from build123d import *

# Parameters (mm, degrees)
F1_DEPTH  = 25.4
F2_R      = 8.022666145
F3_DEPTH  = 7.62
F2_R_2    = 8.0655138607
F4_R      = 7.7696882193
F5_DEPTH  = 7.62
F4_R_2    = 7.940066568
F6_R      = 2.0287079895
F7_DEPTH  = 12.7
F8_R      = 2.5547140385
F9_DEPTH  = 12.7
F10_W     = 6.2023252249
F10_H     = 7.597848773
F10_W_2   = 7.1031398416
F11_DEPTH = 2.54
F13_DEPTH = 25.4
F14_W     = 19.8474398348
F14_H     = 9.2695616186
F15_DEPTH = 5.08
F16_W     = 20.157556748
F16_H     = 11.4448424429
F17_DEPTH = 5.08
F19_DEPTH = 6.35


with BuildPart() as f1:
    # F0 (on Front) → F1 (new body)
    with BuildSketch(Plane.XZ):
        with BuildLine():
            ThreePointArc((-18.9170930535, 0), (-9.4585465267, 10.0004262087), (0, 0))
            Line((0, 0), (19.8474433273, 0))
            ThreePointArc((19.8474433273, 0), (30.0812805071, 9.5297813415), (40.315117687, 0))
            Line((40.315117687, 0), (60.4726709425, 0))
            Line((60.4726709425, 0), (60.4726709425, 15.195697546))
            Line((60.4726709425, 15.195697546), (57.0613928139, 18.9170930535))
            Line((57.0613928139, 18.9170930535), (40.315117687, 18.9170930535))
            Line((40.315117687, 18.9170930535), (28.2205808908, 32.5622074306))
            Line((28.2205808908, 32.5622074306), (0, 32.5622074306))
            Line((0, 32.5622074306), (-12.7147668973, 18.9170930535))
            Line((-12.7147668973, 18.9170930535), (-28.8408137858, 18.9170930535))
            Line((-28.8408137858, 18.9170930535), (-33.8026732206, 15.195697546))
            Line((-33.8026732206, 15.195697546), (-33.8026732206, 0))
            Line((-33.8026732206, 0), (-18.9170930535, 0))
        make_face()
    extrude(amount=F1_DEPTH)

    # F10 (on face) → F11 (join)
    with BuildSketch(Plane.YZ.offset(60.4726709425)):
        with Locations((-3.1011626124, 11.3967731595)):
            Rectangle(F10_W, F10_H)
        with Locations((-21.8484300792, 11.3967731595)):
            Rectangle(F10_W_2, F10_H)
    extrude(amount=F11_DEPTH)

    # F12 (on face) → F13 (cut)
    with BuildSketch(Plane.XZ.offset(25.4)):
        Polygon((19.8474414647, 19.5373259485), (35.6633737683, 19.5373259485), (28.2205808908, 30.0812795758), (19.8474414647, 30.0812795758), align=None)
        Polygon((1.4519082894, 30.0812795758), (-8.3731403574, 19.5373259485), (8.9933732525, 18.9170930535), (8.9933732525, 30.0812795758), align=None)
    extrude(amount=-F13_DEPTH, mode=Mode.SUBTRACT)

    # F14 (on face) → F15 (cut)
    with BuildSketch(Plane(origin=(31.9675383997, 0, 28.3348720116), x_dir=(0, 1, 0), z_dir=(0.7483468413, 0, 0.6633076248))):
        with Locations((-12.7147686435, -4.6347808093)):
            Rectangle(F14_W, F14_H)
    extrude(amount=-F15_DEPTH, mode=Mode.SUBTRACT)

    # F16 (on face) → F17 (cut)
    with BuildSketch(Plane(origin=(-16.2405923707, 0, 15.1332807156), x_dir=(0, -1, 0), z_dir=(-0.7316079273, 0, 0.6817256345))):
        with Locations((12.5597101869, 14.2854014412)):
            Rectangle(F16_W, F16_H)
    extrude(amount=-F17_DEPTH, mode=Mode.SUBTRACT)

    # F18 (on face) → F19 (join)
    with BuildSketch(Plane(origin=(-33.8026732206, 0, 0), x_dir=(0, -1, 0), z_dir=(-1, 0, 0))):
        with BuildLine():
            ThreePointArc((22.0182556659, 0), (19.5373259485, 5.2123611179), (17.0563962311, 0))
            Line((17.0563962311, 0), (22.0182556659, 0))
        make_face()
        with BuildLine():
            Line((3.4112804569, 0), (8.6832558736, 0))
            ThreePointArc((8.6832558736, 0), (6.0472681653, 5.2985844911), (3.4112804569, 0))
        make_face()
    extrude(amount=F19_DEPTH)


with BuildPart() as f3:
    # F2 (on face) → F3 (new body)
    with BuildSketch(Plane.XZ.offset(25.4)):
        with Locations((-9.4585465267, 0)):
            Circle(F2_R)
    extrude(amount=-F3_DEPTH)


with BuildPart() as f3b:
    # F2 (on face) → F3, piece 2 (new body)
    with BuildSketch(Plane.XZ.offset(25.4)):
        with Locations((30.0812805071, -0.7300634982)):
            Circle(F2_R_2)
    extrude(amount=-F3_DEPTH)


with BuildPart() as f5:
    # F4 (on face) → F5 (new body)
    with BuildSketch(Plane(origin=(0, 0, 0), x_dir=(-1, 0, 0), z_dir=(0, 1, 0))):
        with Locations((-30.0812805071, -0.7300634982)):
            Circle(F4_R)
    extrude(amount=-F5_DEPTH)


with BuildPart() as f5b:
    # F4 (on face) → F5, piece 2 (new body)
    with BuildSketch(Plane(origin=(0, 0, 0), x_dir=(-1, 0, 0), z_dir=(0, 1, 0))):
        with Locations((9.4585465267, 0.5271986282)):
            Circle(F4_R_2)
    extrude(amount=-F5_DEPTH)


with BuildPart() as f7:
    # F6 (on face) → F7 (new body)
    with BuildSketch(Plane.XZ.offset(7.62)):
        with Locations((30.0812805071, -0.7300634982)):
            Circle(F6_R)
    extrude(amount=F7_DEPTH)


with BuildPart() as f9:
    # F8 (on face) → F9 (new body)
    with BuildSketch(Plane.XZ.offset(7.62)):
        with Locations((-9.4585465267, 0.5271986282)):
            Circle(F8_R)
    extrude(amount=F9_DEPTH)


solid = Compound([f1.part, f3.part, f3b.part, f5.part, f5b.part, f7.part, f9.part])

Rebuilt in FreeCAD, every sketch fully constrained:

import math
import FreeCAD as App
import Part
import Sketcher
from FreeCAD import Vector
Q = App.Units.Quantity

doc = App.newDocument("Part")
body = doc.addObject("PartDesign::Body", "Body")

# Sketch on XZ plane
sketch1 = body.newObject("Sketcher::SketchObject", "Sketch")
sketch1.AttachmentSupport = (doc.getObject("XZ_Plane"), [""])
sketch1.MapMode = "FlatFace"
sketch1.addGeometry([
    Part.ArcOfCircle(Part.Circle(Vector(-9.458547, 0.527199, 0), Vector(0, 0, 1), 9.473228), math.radians(-3.19024), math.radians(183.19024)),  # 0
    Part.LineSegment(Vector(0, 0, 0), Vector(19.847443, 0, 0)),  # 1
    Part.ArcOfCircle(Part.Circle(Vector(30.081281, -0.730063, 0), Vector(0, 0, 1), 10.259845), math.radians(4.080465), math.radians(175.919535)),  # 2
    Part.LineSegment(Vector(40.315118, 0, 0), Vector(60.472671, 0, 0)),  # 3
    Part.LineSegment(Vector(60.472671, 0, 0), Vector(60.472671, 15.195698, 0)),  # 4
    Part.LineSegment(Vector(60.472671, 15.195698, 0), Vector(57.061393, 18.917093, 0)),  # 5
    Part.LineSegment(Vector(57.061393, 18.917093, 0), Vector(40.315118, 18.917093, 0)),  # 6
    Part.LineSegment(Vector(40.315118, 18.917093, 0), Vector(28.220581, 32.562207, 0)),  # 7
    Part.LineSegment(Vector(28.220581, 32.562207, 0), Vector(0, 32.562207, 0)),  # 8
    Part.LineSegment(Vector(0, 32.562207, 0), Vector(-12.714767, 18.917093, 0)),  # 9
    Part.LineSegment(Vector(-12.714767, 18.917093, 0), Vector(-28.840814, 18.917093, 0)),  # 10
    Part.LineSegment(Vector(-28.840814, 18.917093, 0), Vector(-33.802673, 15.195698, 0)),  # 11
    Part.LineSegment(Vector(-33.802673, 15.195698, 0), Vector(-33.802673, 0, 0)),  # 12
    Part.LineSegment(Vector(-33.802673, 0, 0), Vector(-18.917093, 0, 0)),  # 13
], False)
sketch1.addConstraint([
    Sketcher.Constraint("Coincident", 0, 1, 1, 1),
    Sketcher.Constraint("Coincident", 1, 2, 2, 2),
    Sketcher.Constraint("Coincident", 2, 1, 3, 1),
    Sketcher.Constraint("Coincident", 3, 2, 4, 1),
    Sketcher.Constraint("Coincident", 4, 2, 5, 1),
    Sketcher.Constraint("Coincident", 5, 2, 6, 1),
    Sketcher.Constraint("Coincident", 6, 2, 7, 1),
    Sketcher.Constraint("Coincident", 7, 2, 8, 1),
    Sketcher.Constraint("Coincident", 8, 2, 9, 1),
    Sketcher.Constraint("Coincident", 9, 2, 10, 1),
    Sketcher.Constraint("Coincident", 10, 2, 11, 1),
    Sketcher.Constraint("Coincident", 11, 2, 12, 1),
    Sketcher.Constraint("Coincident", 12, 2, 13, 1),
    Sketcher.Constraint("Coincident", 13, 2, 0, 2),
    Sketcher.Constraint("Horizontal", 1),
    Sketcher.Constraint("Horizontal", 3),
    Sketcher.Constraint("Vertical", 4),
    Sketcher.Constraint("Horizontal", 6),
    Sketcher.Constraint("Horizontal", 8),
    Sketcher.Constraint("Horizontal", 10),
    Sketcher.Constraint("Vertical", 12),
    Sketcher.Constraint("Horizontal", 13),
    Sketcher.Constraint("Coincident", 0, 1, -1, 1),
    Sketcher.Constraint("PointOnObject", 2, 1, -1),
    Sketcher.Constraint("PointOnObject", 8, 2, -2),
    Sketcher.Constraint("PointOnObject", 12, 2, -1),
    Sketcher.Constraint("Horizontal", 6, 2, 9, 2),
    Sketcher.Constraint("Horizontal", 4, 2, 11, 2),
    Sketcher.Constraint("Vertical", 2, 1, 6, 2),
    Sketcher.Constraint("Radius", 0, Q("9.473228 mm")),
    Sketcher.Constraint("Radius", 2, Q("10.259845 mm")),
    Sketcher.Constraint("DistanceY", 0, 3, 11, 2, Q("0.5775 in")),
    Sketcher.Constraint("DistanceX", 8, 2, 8, 1, Q("28.220581 mm")),
    Sketcher.Constraint("DistanceX", 13, 1, 13, 2, Q("14.88558 mm")),
    Sketcher.Constraint("DistanceY", -1, 1, 0, 3, Q("0.527199 mm")),
    Sketcher.Constraint("DistanceX", 7, 2, 2, 3, Q("1.8607 mm")),
    Sketcher.Constraint("DistanceX", 1, 1, 1, 2, Q("19.847443 mm")),
    Sketcher.Constraint("DistanceX", 3, 1, 3, 2, Q("20.157553 mm")),
    Sketcher.Constraint("DistanceX", 6, 2, 6, 1, Q("16.746275 mm")),
    Sketcher.Constraint("DistanceX", 10, 2, 10, 1, Q("16.126047 mm")),
    Sketcher.Constraint("DistanceY", 2, 3, 7, 2, Q("33.292271 mm")),
    Sketcher.Constraint("DistanceX", 9, 2, 0, 3, Q("3.25622 mm")),
    Sketcher.Constraint("Distance", 5, Q("5.048327 mm")),
])
pad1 = body.newObject("PartDesign::Pad", "Pad")
pad1.Profile = sketch1
pad1.Length = Q("1 in")

# Sketch on YZ plane
sketch2 = body.newObject("Sketcher::SketchObject", "Sketch001")
sketch2.AttachmentSupport = (doc.getObject("YZ_Plane"), [""])
sketch2.MapMode = "FlatFace"
sketch2.AttachmentOffset = App.Placement(Vector(0, 0, 60.472671), App.Rotation())
sketch2.addGeometry([
    Part.LineSegment(Vector(-6.202325, 15.195698, 0), Vector(-6.202325, 7.597849, 0)),  # 0
    Part.LineSegment(Vector(-6.202325, 7.597849, 0), Vector(0, 7.597849, 0)),  # 1
    Part.LineSegment(Vector(0, 7.597849, 0), Vector(0, 15.195698, 0)),  # 2
    Part.LineSegment(Vector(0, 15.195698, 0), Vector(-6.202325, 15.195698, 0)),  # 3
    Part.LineSegment(Vector(-25.4, 15.195698, 0), Vector(-25.4, 7.597849, 0)),  # 4
    Part.LineSegment(Vector(-25.4, 7.597849, 0), Vector(-18.29686, 7.597849, 0)),  # 5
    Part.LineSegment(Vector(-18.29686, 7.597849, 0), Vector(-18.29686, 15.195698, 0)),  # 6
    Part.LineSegment(Vector(-18.29686, 15.195698, 0), Vector(-25.4, 15.195698, 0)),  # 7
], False)
sketch2.addConstraint([
    Sketcher.Constraint("Coincident", 0, 2, 1, 1),
    Sketcher.Constraint("Coincident", 1, 2, 2, 1),
    Sketcher.Constraint("Coincident", 2, 2, 3, 1),
    Sketcher.Constraint("Coincident", 3, 2, 0, 1),
    Sketcher.Constraint("Coincident", 4, 2, 5, 1),
    Sketcher.Constraint("Coincident", 5, 2, 6, 1),
    Sketcher.Constraint("Coincident", 6, 2, 7, 1),
    Sketcher.Constraint("Coincident", 7, 2, 4, 1),
    Sketcher.Constraint("Vertical", 0),
    Sketcher.Constraint("Horizontal", 1),
    Sketcher.Constraint("Vertical", 2),
    Sketcher.Constraint("Horizontal", 3),
    Sketcher.Constraint("Vertical", 4),
    Sketcher.Constraint("Horizontal", 5),
    Sketcher.Constraint("Vertical", 6),
    Sketcher.Constraint("Horizontal", 7),
    Sketcher.Constraint("PointOnObject", 1, 2, -2),
    Sketcher.Constraint("Horizontal", 1, 2, 4, 2),
    Sketcher.Constraint("Horizontal", 3, 2, 6, 2),
    Sketcher.Constraint("DistanceX", 4, 2, -1, 1, Q("1 in")),
    Sketcher.Constraint("DistanceX", 5, 1, 5, 2, Q("7.10314 mm")),
    Sketcher.Constraint("DistanceY", 0, 2, 0, 1, Q("7.597849 mm")),
    Sketcher.Constraint("DistanceX", 1, 1, 1, 2, Q("6.202325 mm")),
    Sketcher.Constraint("DistanceY", -1, 1, 0, 2, Q("7.597849 mm")),
])
pad2 = body.newObject("PartDesign::Pad", "Pad001")
pad2.Profile = sketch2
pad2.Length = Q("0.1 in")

# Sketch on XZ plane
sketch3 = body.newObject("Sketcher::SketchObject", "Sketch002")
sketch3.AttachmentSupport = (doc.getObject("XZ_Plane"), [""])
sketch3.MapMode = "FlatFace"
sketch3.AttachmentOffset = App.Placement(Vector(0, 0, 1 * 25.4), App.Rotation())
sketch3.addGeometry([
    Part.LineSegment(Vector(19.847441, 19.537326, 0), Vector(35.663374, 19.537326, 0)),  # 0
    Part.LineSegment(Vector(35.663374, 19.537326, 0), Vector(28.220581, 30.08128, 0)),  # 1
    Part.LineSegment(Vector(28.220581, 30.08128, 0), Vector(19.847441, 30.08128, 0)),  # 2
    Part.LineSegment(Vector(19.847441, 30.08128, 0), Vector(19.847441, 19.537326, 0)),  # 3
    Part.LineSegment(Vector(1.451908, 30.08128, 0), Vector(-8.37314, 19.537326, 0)),  # 4
    Part.LineSegment(Vector(-8.37314, 19.537326, 0), Vector(8.993373, 18.917093, 0)),  # 5
    Part.LineSegment(Vector(8.993373, 18.917093, 0), Vector(8.993373, 30.08128, 0)),  # 6
    Part.LineSegment(Vector(8.993373, 30.08128, 0), Vector(1.451908, 30.08128, 0)),  # 7
], False)
sketch3.addConstraint([
    Sketcher.Constraint("Coincident", 0, 2, 1, 1),
    Sketcher.Constraint("Coincident", 1, 2, 2, 1),
    Sketcher.Constraint("Coincident", 2, 2, 3, 1),
    Sketcher.Constraint("Coincident", 3, 2, 0, 1),
    Sketcher.Constraint("Coincident", 4, 2, 5, 1),
    Sketcher.Constraint("Coincident", 5, 2, 6, 1),
    Sketcher.Constraint("Coincident", 6, 2, 7, 1),
    Sketcher.Constraint("Coincident", 7, 2, 4, 1),
    Sketcher.Constraint("Horizontal", 0),
    Sketcher.Constraint("Horizontal", 2),
    Sketcher.Constraint("Vertical", 3),
    Sketcher.Constraint("Vertical", 6),
    Sketcher.Constraint("Horizontal", 7),
    Sketcher.Constraint("Horizontal", 3, 2, 4, 2),
    Sketcher.Constraint("Horizontal", 2, 2, 6, 2),
    Sketcher.Constraint("DistanceX", 5, 2, 0, 2, Q("1.05 in")),
    Sketcher.Constraint("DistanceX", 2, 2, 2, 1, Q("8.373139 mm")),
    Sketcher.Constraint("DistanceX", 0, 1, 0, 2, Q("15.815932 mm")),
    Sketcher.Constraint("DistanceX", 7, 2, 7, 1, Q("7.541465 mm")),
    Sketcher.Constraint("DistanceY", 3, 2, 3, 1, Q("10.543954 mm")),
    Sketcher.Constraint("DistanceY", 6, 1, 6, 2, Q("11.164187 mm")),
    Sketcher.Constraint("DistanceX", -1, 1, 1, 2, Q("28.220581 mm")),
    Sketcher.Constraint("DistanceY", -1, 1, 1, 2, Q("30.08128 mm")),
    Sketcher.Constraint("DistanceX", 4, 2, -1, 1, Q("8.37314 mm")),
])
pocket1 = body.newObject("PartDesign::Pocket", "Pocket")
pocket1.Profile = sketch3
pocket1.Length = Q("1 in")

# Sketch on an angled plane
sketch4 = body.newObject("Sketcher::SketchObject", "Sketch003")
sketch4.Placement = App.Placement(Vector(31.967538, 0, 28.334872), App.Rotation(Vector(0, 1, 0), Vector(-0.663307625, 0, 0.748346841), Vector(0.748346841, 0, 0.663307625), "ZXY"))
sketch4.addGeometry([
    Part.LineSegment(Vector(-22.638489, 0, 0), Vector(-22.638489, -9.269562, 0)),
    Part.LineSegment(Vector(-22.638489, -9.269562, 0), Vector(-2.791049, -9.269562, 0)),
    Part.LineSegment(Vector(-2.791049, -9.269562, 0), Vector(-2.791049, 0, 0)),
    Part.LineSegment(Vector(-2.791049, 0, 0), Vector(-22.638489, 0, 0)),
], False)
sketch4.addConstraint([
    Sketcher.Constraint("Coincident", 0, 2, 1, 1),
    Sketcher.Constraint("Coincident", 1, 2, 2, 1),
    Sketcher.Constraint("Coincident", 2, 2, 3, 1),
    Sketcher.Constraint("Coincident", 3, 2, 0, 1),
    Sketcher.Constraint("Vertical", 0),
    Sketcher.Constraint("Horizontal", 1),
    Sketcher.Constraint("Vertical", 2),
    Sketcher.Constraint("Horizontal", 3),
    Sketcher.Constraint("PointOnObject", 2, 2, -1),
    Sketcher.Constraint("DistanceX", 1, 1, 1, 2, Q("19.84744 mm")),
    Sketcher.Constraint("DistanceY", 0, 2, 0, 1, Q("9.269562 mm")),
    Sketcher.Constraint("DistanceX", 0, 2, -1, 1, Q("22.638489 mm")),
])
pocket2 = body.newObject("PartDesign::Pocket", "Pocket001")
pocket2.Profile = sketch4
pocket2.Length = Q("0.2 in")

# Sketch on an angled plane
sketch5 = body.newObject("Sketcher::SketchObject", "Sketch004")
sketch5.Placement = App.Placement(Vector(-16.240592, 0, 15.133281), App.Rotation(Vector(0, -1, 0), Vector(0.681725634, 0, 0.731607927), Vector(-0.731607927, 0, 0.681725634), "ZXY"))
sketch5.addGeometry([
    Part.LineSegment(Vector(2.480932, 20.007823, 0), Vector(2.480932, 8.56298, 0)),
    Part.LineSegment(Vector(2.480932, 8.56298, 0), Vector(22.638489, 8.56298, 0)),
    Part.LineSegment(Vector(22.638489, 8.56298, 0), Vector(22.638489, 20.007823, 0)),
    Part.LineSegment(Vector(22.638489, 20.007823, 0), Vector(2.480932, 20.007823, 0)),
], False)
sketch5.addConstraint([
    Sketcher.Constraint("Coincident", 0, 2, 1, 1),
    Sketcher.Constraint("Coincident", 1, 2, 2, 1),
    Sketcher.Constraint("Coincident", 2, 2, 3, 1),
    Sketcher.Constraint("Coincident", 3, 2, 0, 1),
    Sketcher.Constraint("Vertical", 0),
    Sketcher.Constraint("Horizontal", 1),
    Sketcher.Constraint("Vertical", 2),
    Sketcher.Constraint("Horizontal", 3),
    Sketcher.Constraint("DistanceX", 1, 1, 1, 2, Q("20.157557 mm")),
    Sketcher.Constraint("DistanceY", 0, 2, 0, 1, Q("11.444842 mm")),
    Sketcher.Constraint("DistanceX", -1, 1, 0, 2, Q("2.480932 mm")),
    Sketcher.Constraint("DistanceY", -1, 1, 0, 2, Q("8.56298 mm")),
])
pocket3 = body.newObject("PartDesign::Pocket", "Pocket002")
pocket3.Profile = sketch5
pocket3.Length = Q("0.2 in")

# Sketch on YZ plane
sketch6 = body.newObject("Sketcher::SketchObject", "Sketch005")
sketch6.AttachmentSupport = (doc.getObject("YZ_Plane"), [""])
sketch6.MapMode = "FlatFace"
sketch6.AttachmentOffset = App.Placement(Vector(0, 0, -33.802673), App.Rotation())
sketch6.addGeometry([
    Part.ArcOfCircle(Part.Circle(Vector(-19.537326, 2.015756, 0), Vector(0, 0, 1), 3.196605), math.radians(-39.093867), math.radians(219.093867)),
    Part.LineSegment(Vector(-17.056396, 0, 0), Vector(-22.018256, 0, 0)),
    Part.LineSegment(Vector(-3.41128, 0, 0), Vector(-8.683256, 0, 0)),
    Part.ArcOfCircle(Part.Circle(Vector(-6.047268, 1.993605, 0), Vector(0, 0, 1), 3.30498), math.radians(-37.100317), math.radians(217.100317)),
], False)
sketch6.addConstraint([
    Sketcher.Constraint("Coincident", 0, 1, 1, 1),
    Sketcher.Constraint("Coincident", 1, 2, 0, 2),
    Sketcher.Constraint("Coincident", 2, 1, 3, 1),
    Sketcher.Constraint("Coincident", 3, 2, 2, 2),
    Sketcher.Constraint("Horizontal", 1),
    Sketcher.Constraint("Horizontal", 2),
    Sketcher.Constraint("PointOnObject", 0, 1, -1),
    Sketcher.Constraint("PointOnObject", 2, 1, -1),
    Sketcher.Constraint("Radius", 3, Q("3.30498 mm")),
    Sketcher.Constraint("DistanceX", 1, 2, 3, 2, Q("0.525 in")),
    Sketcher.Constraint("Radius", 0, Q("3.196605 mm")),
    Sketcher.Constraint("DistanceX", 1, 2, 1, 1, Q("4.961859 mm")),
    Sketcher.Constraint("DistanceX", 2, 2, 2, 1, Q("5.271975 mm")),
    Sketcher.Constraint("DistanceX", 3, 3, -1, 1, Q("6.047268 mm")),
])
pad3 = body.newObject("PartDesign::Pad", "Pad002")
pad3.Profile = sketch6
pad3.Length = Q("0.25 in")
pad3.Reversed = True
body2 = doc.addObject("PartDesign::Body", "Body001")

# Sketch on XZ plane
sketch7 = body2.newObject("Sketcher::SketchObject", "Sketch006")
sketch7.AttachmentSupport = (doc.getObject("XZ_Plane001"), [""])
sketch7.MapMode = "FlatFace"
sketch7.AttachmentOffset = App.Placement(Vector(0, 0, 1 * 25.4), App.Rotation())
sketch7.addGeometry(Part.Circle(Vector(-9.458547, 0, 0), Vector(0, 0, 1), 8.022666), False)
sketch7.addConstraint([
    Sketcher.Constraint("PointOnObject", 0, 3, -1),
    Sketcher.Constraint("Diameter", 0, Q("16.045332 mm")),
    Sketcher.Constraint("DistanceX", 0, 3, -1, 1, Q("9.458547 mm")),
])
pad4 = body2.newObject("PartDesign::Pad", "Pad003")
pad4.Profile = sketch7
pad4.Length = Q("0.3 in")
pad4.Reversed = True
body3 = doc.addObject("PartDesign::Body", "Body002")

# Sketch on XZ plane
sketch8 = body3.newObject("Sketcher::SketchObject", "Sketch007")
sketch8.AttachmentSupport = (doc.getObject("XZ_Plane002"), [""])
sketch8.MapMode = "FlatFace"
sketch8.AttachmentOffset = App.Placement(Vector(0, 0, 1 * 25.4), App.Rotation())
sketch8.addGeometry(Part.Circle(Vector(30.081281, -0.730063, 0), Vector(0, 0, 1), 8.065514), False)
sketch8.addConstraint([
    Sketcher.Constraint("Diameter", 0, Q("16.131028 mm")),
    Sketcher.Constraint("DistanceX", -1, 1, 0, 3, Q("30.081281 mm")),
    Sketcher.Constraint("DistanceY", 0, 3, -1, 1, Q("0.730063 mm")),
])
pad5 = body3.newObject("PartDesign::Pad", "Pad004")
pad5.Profile = sketch8
pad5.Length = Q("0.3 in")
pad5.Reversed = True
body4 = doc.addObject("PartDesign::Body", "Body003")

# Sketch on XZ plane
sketch9 = body4.newObject("Sketcher::SketchObject", "Sketch008")
sketch9.AttachmentSupport = (doc.getObject("XZ_Plane003"), [""])
sketch9.MapMode = "FlatFace"
sketch9.addGeometry(Part.Circle(Vector(30.081281, -0.730063, 0), Vector(0, 0, 1), 7.769688), False)
sketch9.addConstraint([
    Sketcher.Constraint("Diameter", 0, Q("15.539376 mm")),
    Sketcher.Constraint("DistanceX", -1, 1, 0, 3, Q("30.081281 mm")),
    Sketcher.Constraint("DistanceY", 0, 3, -1, 1, Q("0.730063 mm")),
])
pad6 = body4.newObject("PartDesign::Pad", "Pad005")
pad6.Profile = sketch9
pad6.Length = Q("0.3 in")
body5 = doc.addObject("PartDesign::Body", "Body004")

# Sketch on XZ plane
sketch10 = body5.newObject("Sketcher::SketchObject", "Sketch009")
sketch10.AttachmentSupport = (doc.getObject("XZ_Plane004"), [""])
sketch10.MapMode = "FlatFace"
sketch10.addGeometry(Part.Circle(Vector(-9.458547, 0.527199, 0), Vector(0, 0, 1), 7.940067), False)
sketch10.addConstraint([
    Sketcher.Constraint("Diameter", 0, Q("15.880133 mm")),
    Sketcher.Constraint("DistanceY", -1, 1, 0, 3, Q("0.527199 mm")),
    Sketcher.Constraint("DistanceX", 0, 3, -1, 1, Q("9.458547 mm")),
])
pad7 = body5.newObject("PartDesign::Pad", "Pad006")
pad7.Profile = sketch10
pad7.Length = Q("0.3 in")
body6 = doc.addObject("PartDesign::Body", "Body005")

# Sketch on XZ plane
sketch11 = body6.newObject("Sketcher::SketchObject", "Sketch010")
sketch11.AttachmentSupport = (doc.getObject("XZ_Plane005"), [""])
sketch11.MapMode = "FlatFace"
sketch11.AttachmentOffset = App.Placement(Vector(0, 0, 0.3 * 25.4), App.Rotation())
sketch11.addGeometry(Part.Circle(Vector(30.081281, -0.730063, 0), Vector(0, 0, 1), 2.028708), False)
sketch11.addConstraint([
    Sketcher.Constraint("Diameter", 0, Q("4.057416 mm")),
    Sketcher.Constraint("DistanceX", -1, 1, 0, 3, Q("30.081281 mm")),
    Sketcher.Constraint("DistanceY", 0, 3, -1, 1, Q("0.730063 mm")),
])
pad8 = body6.newObject("PartDesign::Pad", "Pad007")
pad8.Profile = sketch11
pad8.Length = Q("0.5 in")
body7 = doc.addObject("PartDesign::Body", "Body006")

# Sketch on XZ plane
sketch12 = body7.newObject("Sketcher::SketchObject", "Sketch011")
sketch12.AttachmentSupport = (doc.getObject("XZ_Plane006"), [""])
sketch12.MapMode = "FlatFace"
sketch12.AttachmentOffset = App.Placement(Vector(0, 0, 0.3 * 25.4), App.Rotation())
sketch12.addGeometry(Part.Circle(Vector(-9.458547, 0.527199, 0), Vector(0, 0, 1), 2.554714), False)
sketch12.addConstraint([
    Sketcher.Constraint("Diameter", 0, Q("5.109428 mm")),
    Sketcher.Constraint("DistanceY", -1, 1, 0, 3, Q("0.527199 mm")),
    Sketcher.Constraint("DistanceX", 0, 3, -1, 1, Q("9.458547 mm")),
])
pad9 = body7.newObject("PartDesign::Pad", "Pad008")
pad9.Profile = sketch12
pad9.Length = Q("0.5 in")

doc.recompute()
